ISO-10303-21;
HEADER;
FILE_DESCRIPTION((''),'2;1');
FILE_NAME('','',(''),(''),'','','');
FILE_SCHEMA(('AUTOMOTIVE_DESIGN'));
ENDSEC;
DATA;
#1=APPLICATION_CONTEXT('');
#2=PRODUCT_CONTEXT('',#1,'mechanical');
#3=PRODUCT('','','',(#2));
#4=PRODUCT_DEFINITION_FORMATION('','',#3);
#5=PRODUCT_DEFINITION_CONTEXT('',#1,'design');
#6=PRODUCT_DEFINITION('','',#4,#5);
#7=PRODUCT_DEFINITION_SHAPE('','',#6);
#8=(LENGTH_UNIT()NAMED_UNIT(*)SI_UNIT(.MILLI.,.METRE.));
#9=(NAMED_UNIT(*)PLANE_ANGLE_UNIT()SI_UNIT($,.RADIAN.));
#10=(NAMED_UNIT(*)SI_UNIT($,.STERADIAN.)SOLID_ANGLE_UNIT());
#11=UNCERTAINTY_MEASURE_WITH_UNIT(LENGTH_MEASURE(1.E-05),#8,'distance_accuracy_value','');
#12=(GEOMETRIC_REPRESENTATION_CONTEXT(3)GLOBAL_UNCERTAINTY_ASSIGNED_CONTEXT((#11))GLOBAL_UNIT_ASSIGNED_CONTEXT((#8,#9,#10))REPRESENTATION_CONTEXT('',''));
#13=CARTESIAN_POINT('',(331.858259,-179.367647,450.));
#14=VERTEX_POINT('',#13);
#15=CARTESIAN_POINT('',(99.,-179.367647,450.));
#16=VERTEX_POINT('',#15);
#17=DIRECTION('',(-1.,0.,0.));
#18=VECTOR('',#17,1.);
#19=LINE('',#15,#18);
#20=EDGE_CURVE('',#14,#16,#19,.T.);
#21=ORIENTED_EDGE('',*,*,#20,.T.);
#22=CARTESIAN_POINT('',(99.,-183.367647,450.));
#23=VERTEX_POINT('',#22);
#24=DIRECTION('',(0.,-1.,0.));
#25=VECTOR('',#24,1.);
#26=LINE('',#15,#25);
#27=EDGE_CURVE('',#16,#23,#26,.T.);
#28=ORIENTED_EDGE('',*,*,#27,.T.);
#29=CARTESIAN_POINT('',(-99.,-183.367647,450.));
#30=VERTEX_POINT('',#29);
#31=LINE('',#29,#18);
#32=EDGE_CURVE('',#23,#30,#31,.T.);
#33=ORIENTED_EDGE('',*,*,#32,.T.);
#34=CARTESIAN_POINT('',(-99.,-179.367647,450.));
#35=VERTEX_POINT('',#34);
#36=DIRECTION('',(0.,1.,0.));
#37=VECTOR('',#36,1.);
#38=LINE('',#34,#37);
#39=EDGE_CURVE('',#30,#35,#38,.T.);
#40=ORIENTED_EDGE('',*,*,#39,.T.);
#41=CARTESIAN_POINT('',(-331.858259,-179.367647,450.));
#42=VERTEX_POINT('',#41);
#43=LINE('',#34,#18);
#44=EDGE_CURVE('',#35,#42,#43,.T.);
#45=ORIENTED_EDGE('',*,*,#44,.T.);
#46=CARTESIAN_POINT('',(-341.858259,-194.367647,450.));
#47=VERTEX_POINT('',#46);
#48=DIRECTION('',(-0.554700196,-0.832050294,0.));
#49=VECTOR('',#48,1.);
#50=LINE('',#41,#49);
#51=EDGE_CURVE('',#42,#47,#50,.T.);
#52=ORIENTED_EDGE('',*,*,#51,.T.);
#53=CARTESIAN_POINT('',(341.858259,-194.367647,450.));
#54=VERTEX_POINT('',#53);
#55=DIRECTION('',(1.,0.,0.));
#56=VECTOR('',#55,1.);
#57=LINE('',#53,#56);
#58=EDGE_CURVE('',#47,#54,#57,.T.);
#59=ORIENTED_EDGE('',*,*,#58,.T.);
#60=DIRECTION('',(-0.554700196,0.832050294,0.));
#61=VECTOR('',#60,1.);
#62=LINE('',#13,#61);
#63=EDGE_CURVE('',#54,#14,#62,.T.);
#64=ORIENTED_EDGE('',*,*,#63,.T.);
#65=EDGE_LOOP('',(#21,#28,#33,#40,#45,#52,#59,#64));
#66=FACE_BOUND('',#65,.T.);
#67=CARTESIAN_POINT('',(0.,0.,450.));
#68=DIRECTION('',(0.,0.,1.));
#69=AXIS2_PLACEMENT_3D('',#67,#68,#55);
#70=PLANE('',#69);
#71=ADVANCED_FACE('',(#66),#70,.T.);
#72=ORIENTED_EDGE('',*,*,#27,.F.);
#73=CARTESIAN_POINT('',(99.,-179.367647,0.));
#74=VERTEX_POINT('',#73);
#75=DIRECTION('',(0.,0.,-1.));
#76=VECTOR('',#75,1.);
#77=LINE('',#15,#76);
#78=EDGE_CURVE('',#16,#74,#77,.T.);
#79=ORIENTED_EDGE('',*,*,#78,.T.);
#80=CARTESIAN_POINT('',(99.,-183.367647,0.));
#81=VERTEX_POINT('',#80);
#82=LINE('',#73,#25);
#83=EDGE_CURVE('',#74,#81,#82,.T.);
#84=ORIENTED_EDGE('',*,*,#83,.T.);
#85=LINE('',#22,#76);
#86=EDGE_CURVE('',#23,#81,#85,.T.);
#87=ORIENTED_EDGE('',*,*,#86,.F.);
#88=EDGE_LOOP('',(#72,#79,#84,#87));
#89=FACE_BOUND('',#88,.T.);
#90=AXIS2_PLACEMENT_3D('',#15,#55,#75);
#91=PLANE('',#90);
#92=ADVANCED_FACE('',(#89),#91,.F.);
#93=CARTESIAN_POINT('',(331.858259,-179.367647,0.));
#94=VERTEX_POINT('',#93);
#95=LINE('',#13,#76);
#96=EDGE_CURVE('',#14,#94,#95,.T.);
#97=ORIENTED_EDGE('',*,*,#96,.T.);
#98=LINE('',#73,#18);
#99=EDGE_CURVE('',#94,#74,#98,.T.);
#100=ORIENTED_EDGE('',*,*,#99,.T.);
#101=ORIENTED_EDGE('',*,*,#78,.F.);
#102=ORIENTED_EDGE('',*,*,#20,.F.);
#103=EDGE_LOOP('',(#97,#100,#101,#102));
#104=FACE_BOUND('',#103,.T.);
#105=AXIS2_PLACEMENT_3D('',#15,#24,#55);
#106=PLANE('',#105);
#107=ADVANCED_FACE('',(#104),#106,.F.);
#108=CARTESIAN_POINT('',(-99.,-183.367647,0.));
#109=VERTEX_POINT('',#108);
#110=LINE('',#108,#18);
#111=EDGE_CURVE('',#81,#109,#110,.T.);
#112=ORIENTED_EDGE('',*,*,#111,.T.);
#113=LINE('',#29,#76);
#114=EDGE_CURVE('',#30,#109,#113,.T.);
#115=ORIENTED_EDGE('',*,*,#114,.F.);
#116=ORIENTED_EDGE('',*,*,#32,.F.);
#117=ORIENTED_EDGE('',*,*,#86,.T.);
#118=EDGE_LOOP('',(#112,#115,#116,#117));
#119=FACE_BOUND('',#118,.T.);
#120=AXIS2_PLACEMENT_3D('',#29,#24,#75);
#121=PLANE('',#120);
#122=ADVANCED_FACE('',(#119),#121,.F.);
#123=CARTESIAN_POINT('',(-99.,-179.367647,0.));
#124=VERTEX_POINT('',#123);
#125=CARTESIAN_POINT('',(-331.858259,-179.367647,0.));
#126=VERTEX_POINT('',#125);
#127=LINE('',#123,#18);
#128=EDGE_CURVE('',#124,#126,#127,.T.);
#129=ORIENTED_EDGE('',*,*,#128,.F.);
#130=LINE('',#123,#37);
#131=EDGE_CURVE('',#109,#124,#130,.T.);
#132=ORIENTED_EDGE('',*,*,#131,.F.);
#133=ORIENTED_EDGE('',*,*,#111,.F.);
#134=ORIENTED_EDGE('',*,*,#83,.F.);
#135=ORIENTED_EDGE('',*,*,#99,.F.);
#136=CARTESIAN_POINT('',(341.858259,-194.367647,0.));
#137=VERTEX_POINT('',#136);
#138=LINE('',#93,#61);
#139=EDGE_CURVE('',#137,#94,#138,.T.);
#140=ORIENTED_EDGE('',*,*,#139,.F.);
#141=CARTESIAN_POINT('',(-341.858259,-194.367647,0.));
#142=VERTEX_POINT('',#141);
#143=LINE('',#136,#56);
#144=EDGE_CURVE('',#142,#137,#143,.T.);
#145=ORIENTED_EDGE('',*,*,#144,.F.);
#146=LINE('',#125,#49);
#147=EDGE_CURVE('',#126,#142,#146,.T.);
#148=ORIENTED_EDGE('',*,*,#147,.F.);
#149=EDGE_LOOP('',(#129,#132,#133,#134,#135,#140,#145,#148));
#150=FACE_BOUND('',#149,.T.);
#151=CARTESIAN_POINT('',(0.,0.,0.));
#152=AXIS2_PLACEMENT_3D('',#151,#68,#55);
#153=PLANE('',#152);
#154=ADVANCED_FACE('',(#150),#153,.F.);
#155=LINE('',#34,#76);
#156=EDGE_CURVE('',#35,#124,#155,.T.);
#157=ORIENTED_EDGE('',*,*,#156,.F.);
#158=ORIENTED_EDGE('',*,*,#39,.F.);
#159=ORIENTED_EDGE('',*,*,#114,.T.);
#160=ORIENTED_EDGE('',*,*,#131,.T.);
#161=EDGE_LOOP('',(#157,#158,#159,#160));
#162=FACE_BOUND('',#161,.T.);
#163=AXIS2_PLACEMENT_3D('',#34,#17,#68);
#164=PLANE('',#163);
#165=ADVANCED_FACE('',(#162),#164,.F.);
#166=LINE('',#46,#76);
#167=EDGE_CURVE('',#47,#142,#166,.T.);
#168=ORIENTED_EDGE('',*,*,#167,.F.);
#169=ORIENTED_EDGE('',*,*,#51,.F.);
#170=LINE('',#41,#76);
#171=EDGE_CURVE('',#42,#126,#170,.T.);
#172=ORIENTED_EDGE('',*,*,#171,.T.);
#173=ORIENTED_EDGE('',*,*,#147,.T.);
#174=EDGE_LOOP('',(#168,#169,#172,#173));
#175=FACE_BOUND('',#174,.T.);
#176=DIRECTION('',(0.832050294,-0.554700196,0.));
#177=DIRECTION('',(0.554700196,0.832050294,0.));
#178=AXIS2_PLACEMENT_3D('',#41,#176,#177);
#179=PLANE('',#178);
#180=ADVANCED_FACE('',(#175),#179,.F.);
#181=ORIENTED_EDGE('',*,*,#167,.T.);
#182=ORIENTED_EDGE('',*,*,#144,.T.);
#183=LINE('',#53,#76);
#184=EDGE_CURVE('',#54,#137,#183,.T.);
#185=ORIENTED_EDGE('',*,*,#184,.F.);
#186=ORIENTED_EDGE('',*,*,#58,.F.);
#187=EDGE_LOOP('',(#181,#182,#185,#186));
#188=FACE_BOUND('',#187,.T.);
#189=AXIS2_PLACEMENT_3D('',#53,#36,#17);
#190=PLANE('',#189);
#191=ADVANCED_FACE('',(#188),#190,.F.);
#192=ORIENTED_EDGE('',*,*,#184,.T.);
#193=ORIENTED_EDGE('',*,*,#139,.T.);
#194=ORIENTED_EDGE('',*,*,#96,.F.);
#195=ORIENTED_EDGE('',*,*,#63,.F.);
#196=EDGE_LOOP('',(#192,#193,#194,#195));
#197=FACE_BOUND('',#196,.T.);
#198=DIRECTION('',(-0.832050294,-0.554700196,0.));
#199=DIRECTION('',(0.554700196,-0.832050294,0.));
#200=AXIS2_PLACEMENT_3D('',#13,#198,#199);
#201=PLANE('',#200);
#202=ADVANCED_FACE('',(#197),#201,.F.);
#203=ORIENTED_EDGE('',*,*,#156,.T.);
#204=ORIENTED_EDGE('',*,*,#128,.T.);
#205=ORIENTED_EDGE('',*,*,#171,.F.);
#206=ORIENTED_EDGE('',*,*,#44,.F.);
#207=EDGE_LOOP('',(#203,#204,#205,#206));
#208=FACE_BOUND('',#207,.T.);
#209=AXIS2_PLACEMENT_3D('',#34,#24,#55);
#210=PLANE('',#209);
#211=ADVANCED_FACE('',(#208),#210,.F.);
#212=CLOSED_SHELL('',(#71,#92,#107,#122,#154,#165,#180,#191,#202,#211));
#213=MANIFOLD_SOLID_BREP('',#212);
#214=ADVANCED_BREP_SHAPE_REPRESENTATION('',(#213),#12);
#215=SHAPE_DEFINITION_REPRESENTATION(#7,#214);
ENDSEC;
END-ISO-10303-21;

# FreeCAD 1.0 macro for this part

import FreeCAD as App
import Part
import Sketcher
from FreeCAD import Vector
Q = App.Units.Quantity


def add_polygon(sketch, points):
    """Adds a closed chain of lines whose ends are joined by coincident constraints."""
    first, n = sketch.GeometryCount, len(points)
    for a, b in zip(points, points[1:] + points[:1]):
        sketch.addGeometry(Part.LineSegment(App.Vector(*a, 0), App.Vector(*b, 0)), False)
    for i in range(n):
        sketch.addConstraint(Sketcher.Constraint("Coincident", first + i, 2, first + (i + 1) % n, 1))

doc = App.newDocument("Part")
body = doc.addObject("PartDesign::Body", "Body")

# Sketch on XY plane
sketch1 = body.newObject("Sketcher::SketchObject", "Sketch")
sketch1.AttachmentSupport = (doc.getObject("XY_Plane"), [""])
sketch1.MapMode = "FlatFace"
add_polygon(sketch1, [(341.9, -194.4), (331.9, -179.4), (99, -179.4), (99, -183.4), (-99, -183.4), (-99, -179.4), (-331.9, -179.4), (-341.9, -194.4)])  # lines 0-7
sketch1.addConstraint(Sketcher.Constraint("Horizontal", 1))
sketch1.addConstraint(Sketcher.Constraint("Vertical", 2))
sketch1.addConstraint(Sketcher.Constraint("Horizontal", 3))
sketch1.addConstraint(Sketcher.Constraint("Vertical", 4))
sketch1.addConstraint(Sketcher.Constraint("Horizontal", 5))
sketch1.addConstraint(Sketcher.Constraint("Horizontal", 7))
sketch1.addConstraint(Sketcher.Constraint("Symmetric", 1, 2, 4, 2, -2))
sketch1.addConstraint(Sketcher.Constraint("Equal", 1, 5))
sketch1.addConstraint(Sketcher.Constraint("Equal", 0, 6))
sketch1.addConstraint(Sketcher.Constraint("DistanceX", 3, 2, 3, 1, Q("198 mm")))
sketch1.addConstraint(Sketcher.Constraint("DistanceY", 2, 2, 2, 1, Q("4 mm")))
sketch1.addConstraint(Sketcher.Constraint("DistanceX", 6, 2, 5, 2, Q("10 mm")))
sketch1.addConstraint(Sketcher.Constraint("DistanceY", 6, 2, 5, 2, Q("15 mm")))
sketch1.addConstraint(Sketcher.Constraint("DistanceX", 1, 2, 1, 1, Q("232.858259 mm")))
sketch1.addConstraint(Sketcher.Constraint("DistanceY", 0, 2, -1, 1, Q("179.367647 mm")))
pad1 = body.newObject("PartDesign::Pad", "Pad")
pad1.Profile = sketch1
pad1.Length = 450

doc.recompute()
